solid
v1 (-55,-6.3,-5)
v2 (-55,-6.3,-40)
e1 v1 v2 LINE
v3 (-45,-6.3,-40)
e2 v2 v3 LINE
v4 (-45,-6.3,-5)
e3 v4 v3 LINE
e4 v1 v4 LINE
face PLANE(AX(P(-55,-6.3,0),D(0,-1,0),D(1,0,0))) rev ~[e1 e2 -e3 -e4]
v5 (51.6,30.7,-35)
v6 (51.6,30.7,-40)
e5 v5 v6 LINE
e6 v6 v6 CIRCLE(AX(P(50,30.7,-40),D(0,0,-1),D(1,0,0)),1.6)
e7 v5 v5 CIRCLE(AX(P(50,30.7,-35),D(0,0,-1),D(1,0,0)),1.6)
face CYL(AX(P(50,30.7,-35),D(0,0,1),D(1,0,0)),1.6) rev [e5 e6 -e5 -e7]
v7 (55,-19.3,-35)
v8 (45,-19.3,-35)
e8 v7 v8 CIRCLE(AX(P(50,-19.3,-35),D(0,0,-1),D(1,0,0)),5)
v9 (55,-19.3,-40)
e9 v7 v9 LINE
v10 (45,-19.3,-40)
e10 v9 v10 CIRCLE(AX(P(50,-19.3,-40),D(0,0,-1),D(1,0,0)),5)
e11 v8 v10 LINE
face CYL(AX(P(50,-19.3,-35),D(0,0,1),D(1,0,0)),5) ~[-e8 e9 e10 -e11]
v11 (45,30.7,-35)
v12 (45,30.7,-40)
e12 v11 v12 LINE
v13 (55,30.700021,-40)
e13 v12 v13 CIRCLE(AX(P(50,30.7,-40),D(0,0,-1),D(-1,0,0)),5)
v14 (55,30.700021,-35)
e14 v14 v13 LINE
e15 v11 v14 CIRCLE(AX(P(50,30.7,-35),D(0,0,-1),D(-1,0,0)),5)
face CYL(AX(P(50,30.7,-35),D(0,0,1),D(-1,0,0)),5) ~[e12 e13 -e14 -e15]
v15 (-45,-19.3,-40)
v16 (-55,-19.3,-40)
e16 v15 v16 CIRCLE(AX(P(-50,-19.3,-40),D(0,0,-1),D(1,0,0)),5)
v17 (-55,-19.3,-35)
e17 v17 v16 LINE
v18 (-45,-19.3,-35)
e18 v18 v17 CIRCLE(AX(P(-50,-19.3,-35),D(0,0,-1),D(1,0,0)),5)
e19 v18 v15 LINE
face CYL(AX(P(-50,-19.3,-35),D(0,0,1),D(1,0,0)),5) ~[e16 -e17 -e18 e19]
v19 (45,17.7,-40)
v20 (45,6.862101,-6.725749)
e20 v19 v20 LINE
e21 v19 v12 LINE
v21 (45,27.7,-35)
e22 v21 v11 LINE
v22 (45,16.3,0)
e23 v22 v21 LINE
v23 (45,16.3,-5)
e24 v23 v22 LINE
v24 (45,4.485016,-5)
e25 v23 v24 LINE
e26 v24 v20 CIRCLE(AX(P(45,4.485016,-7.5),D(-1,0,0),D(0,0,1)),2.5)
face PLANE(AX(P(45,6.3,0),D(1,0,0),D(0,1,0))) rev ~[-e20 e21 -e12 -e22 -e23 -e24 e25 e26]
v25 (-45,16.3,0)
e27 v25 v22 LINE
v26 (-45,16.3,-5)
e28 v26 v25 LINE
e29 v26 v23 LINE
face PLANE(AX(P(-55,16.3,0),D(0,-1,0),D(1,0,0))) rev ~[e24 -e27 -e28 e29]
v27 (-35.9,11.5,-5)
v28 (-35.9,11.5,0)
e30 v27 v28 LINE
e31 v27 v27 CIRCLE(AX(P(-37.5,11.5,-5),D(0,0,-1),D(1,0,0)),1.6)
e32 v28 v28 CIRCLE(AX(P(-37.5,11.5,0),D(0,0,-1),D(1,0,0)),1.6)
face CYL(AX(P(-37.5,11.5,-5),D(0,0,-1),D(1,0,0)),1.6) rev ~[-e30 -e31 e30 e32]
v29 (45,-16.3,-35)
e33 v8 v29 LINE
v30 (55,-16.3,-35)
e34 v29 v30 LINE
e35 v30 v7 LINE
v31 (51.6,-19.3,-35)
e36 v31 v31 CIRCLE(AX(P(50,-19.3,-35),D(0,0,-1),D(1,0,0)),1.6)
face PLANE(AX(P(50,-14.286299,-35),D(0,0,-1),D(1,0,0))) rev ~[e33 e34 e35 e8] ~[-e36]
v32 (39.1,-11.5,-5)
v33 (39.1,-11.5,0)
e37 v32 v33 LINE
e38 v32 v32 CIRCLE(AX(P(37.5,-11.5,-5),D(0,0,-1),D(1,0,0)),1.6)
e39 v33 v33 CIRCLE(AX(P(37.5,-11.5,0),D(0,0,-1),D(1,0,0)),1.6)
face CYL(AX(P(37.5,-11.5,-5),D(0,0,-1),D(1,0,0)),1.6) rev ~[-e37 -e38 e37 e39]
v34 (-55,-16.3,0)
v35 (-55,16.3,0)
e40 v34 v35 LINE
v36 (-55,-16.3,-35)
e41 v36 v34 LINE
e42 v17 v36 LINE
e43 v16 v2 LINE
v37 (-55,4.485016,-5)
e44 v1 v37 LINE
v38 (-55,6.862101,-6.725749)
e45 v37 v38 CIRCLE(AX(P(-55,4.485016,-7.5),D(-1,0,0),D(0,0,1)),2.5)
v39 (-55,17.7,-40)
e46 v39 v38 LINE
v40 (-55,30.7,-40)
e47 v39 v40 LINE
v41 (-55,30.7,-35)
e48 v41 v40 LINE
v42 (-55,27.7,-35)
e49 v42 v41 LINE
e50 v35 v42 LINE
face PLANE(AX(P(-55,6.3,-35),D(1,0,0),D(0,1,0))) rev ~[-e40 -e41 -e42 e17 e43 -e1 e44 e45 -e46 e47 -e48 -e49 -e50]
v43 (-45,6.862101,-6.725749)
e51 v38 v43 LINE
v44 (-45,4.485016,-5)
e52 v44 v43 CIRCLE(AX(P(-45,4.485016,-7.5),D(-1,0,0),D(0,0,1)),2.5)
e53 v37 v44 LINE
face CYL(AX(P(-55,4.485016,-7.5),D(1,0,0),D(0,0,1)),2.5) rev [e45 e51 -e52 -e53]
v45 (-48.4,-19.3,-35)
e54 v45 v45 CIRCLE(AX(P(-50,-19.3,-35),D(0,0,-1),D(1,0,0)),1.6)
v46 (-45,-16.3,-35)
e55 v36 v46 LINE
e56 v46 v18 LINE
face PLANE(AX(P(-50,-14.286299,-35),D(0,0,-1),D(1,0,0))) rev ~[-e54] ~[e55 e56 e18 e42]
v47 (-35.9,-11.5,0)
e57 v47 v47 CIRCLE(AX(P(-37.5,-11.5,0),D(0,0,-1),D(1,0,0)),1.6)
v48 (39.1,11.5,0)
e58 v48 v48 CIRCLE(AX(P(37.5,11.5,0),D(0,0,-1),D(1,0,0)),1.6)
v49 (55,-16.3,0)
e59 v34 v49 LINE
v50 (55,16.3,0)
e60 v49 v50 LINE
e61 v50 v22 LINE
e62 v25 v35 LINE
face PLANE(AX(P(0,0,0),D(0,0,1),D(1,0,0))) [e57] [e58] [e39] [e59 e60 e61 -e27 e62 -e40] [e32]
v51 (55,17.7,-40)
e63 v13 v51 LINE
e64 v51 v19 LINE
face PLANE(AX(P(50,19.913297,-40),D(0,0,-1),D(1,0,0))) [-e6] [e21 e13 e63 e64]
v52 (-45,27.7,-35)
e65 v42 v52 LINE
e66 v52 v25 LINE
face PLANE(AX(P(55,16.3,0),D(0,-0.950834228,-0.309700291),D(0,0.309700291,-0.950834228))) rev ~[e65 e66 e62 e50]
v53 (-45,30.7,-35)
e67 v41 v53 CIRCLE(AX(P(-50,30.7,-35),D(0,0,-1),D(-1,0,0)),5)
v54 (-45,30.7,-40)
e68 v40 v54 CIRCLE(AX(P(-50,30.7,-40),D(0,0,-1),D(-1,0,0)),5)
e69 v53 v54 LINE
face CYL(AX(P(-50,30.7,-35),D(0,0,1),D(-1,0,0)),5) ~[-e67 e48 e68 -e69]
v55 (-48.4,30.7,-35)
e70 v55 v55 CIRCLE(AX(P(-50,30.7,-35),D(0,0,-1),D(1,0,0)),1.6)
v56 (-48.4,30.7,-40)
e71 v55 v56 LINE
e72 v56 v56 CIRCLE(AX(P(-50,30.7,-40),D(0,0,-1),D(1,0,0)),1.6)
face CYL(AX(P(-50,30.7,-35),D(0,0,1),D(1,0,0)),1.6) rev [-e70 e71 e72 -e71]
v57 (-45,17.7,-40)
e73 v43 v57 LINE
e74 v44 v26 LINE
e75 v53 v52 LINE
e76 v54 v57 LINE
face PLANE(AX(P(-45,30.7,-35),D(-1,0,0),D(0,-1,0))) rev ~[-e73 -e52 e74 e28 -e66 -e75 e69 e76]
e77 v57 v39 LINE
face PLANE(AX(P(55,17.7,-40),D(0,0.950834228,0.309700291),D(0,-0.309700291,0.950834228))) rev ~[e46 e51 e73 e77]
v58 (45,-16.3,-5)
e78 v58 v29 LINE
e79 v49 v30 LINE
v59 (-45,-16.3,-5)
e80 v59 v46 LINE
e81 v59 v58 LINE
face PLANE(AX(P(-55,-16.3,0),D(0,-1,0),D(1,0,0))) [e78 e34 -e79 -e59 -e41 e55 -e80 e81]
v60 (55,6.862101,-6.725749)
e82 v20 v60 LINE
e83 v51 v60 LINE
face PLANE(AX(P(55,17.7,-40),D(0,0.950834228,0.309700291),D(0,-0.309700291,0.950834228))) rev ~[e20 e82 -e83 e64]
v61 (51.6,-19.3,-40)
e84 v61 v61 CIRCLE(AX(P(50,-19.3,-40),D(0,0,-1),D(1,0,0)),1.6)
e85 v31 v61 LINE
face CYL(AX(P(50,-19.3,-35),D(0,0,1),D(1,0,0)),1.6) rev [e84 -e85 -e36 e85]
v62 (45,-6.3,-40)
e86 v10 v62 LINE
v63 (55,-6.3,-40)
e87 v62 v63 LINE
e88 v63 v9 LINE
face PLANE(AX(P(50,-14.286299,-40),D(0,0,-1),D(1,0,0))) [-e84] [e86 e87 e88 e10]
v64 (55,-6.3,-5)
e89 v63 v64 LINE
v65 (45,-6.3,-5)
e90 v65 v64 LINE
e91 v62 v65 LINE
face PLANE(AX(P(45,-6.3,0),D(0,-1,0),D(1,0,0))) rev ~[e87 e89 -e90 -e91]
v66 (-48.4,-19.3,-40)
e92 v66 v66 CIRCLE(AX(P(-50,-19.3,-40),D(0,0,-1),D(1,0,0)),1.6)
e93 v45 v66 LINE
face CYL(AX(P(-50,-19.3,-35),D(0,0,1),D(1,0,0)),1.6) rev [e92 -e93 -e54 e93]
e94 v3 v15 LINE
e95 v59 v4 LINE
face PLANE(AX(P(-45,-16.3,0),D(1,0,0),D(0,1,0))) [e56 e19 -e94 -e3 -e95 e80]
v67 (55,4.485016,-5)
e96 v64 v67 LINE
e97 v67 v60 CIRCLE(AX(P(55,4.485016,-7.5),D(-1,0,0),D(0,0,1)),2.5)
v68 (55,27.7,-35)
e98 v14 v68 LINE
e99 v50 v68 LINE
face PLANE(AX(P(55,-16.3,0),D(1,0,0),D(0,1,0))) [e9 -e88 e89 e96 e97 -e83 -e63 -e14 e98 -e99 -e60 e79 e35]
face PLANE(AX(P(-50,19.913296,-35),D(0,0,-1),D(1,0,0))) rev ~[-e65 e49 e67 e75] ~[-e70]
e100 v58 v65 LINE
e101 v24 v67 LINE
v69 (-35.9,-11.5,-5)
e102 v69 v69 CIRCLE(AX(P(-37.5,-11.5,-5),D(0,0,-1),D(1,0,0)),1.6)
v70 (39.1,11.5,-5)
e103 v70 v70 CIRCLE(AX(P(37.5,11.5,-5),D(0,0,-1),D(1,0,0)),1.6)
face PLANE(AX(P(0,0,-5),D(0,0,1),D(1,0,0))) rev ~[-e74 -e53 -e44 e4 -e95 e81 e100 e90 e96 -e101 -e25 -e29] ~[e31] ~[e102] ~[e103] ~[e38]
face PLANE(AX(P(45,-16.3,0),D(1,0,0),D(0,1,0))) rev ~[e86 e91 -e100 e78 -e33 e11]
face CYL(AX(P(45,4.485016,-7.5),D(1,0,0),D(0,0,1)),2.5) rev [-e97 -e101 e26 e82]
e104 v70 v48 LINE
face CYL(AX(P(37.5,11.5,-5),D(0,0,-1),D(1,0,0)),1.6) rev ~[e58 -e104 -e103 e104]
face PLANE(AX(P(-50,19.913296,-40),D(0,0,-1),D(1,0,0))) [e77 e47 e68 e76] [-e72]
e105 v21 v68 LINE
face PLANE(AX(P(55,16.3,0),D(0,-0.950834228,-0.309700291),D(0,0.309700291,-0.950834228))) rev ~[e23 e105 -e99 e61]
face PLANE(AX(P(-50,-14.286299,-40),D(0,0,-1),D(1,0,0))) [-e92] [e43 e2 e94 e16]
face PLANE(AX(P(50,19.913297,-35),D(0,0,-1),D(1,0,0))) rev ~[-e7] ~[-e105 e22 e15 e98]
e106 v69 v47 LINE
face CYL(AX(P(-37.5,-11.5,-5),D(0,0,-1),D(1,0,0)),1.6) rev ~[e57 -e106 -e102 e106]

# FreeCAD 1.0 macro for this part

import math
import FreeCAD as App
import Part
import Sketcher
from FreeCAD import Vector


def edges_at(feature, points):
    """Names of the edges that pass closest to the given points."""
    edges = feature.Shape.Edges
    near = lambda p: min(range(len(edges)), key=lambda i: edges[i].distToShape(Part.Vertex(*p))[0])
    return sorted({f"Edge{near(p) + 1}" for p in points})


def add_polygon(sketch, points):
    """Adds a closed chain of lines whose ends are joined by coincident constraints."""
    first, n = sketch.GeometryCount, len(points)
    for a, b in zip(points, points[1:] + points[:1]):
        sketch.addGeometry(Part.LineSegment(App.Vector(*a, 0), App.Vector(*b, 0)), False)
    for i in range(n):
        sketch.addConstraint(Sketcher.Constraint("Coincident", first + i, 2, first + (i + 1) % n, 1))

doc = App.newDocument("Part")
params = doc.addObject("Spreadsheet::Sheet", "Params")
for row, (alias, value) in enumerate([
    ("sketch1_width", "110 mm"),
    ("sketch1_height", "32.6 mm"),
    ("pad1_length", "5 mm"),
    ("sketch2_diameter", "3.2 mm"),
    ("pocket1_length", "5 mm"),
    ("sketch3_width", "10 mm"),
    ("sketch3_height", "21.4 mm"),
    ("pad2_length", "35 mm"),
    ("sketch4_radius", "5 mm"),
    ("sketch4_diameter", "3.2 mm"),
    ("sketch4_height", "13 mm"),
    ("sketch4_height2", "24.4 mm"),
    ("pad3_length", "5 mm"),
    ("sketch5_height", "35 mm"),
    ("sketch5_width", "11.4 mm"),
    ("pocket2_length", "110 mm"),
    ("fillet_radius", "2.5 mm"),
], start=1):
    params.set(f"A{row}", alias)
    params.set(f"B{row}", "=" + value)
    params.setAlias(f"B{row}", alias)

body = doc.addObject("PartDesign::Body", "Body")

# Sketch on XY plane
sketch1 = body.newObject("Sketcher::SketchObject", "Sketch")
sketch1.AttachmentSupport = (doc.getObject("XY_Plane"), [""])
sketch1.MapMode = "FlatFace"
add_polygon(sketch1, [(-55, 16), (-55, -16), (55, -16), (55, 16)])  # lines 0-3
sketch1.addConstraint([
    Sketcher.Constraint("Vertical", 0),
    Sketcher.Constraint("Horizontal", 1),
    Sketcher.Constraint("Vertical", 2),
    Sketcher.Constraint("Horizontal", 3),
    Sketcher.Constraint("Symmetric", 0, 2, 2, 2, -1, 1),
    Sketcher.Constraint("DistanceX", 1, 1, 1, 2, 110.0),
    Sketcher.Constraint("DistanceY", 0, 2, 0, 1, 32.6),
])
sketch1.setExpression("Constraints[9]", "Params.sketch1_width")
sketch1.setExpression("Constraints[10]", "Params.sketch1_height")
pad1 = body.newObject("PartDesign::Pad", "Pad")
pad1.Profile = sketch1
pad1.setExpression("Length", "Params.pad1_length")
pad1.Reversed = True

# Sketch on XY plane
sketch2 = body.newObject("Sketcher::SketchObject", "Sketch001")
sketch2.AttachmentSupport = (doc.getObject("XY_Plane"), [""])
sketch2.MapMode = "FlatFace"
sketch2.AttachmentOffset = App.Placement(Vector(0, 0, -5), App.Rotation())
sketch2.addGeometry([
    Part.Circle(Vector(-37.5, -11.5, 0), Vector(0, 0, 1), 1.6),
    Part.Circle(Vector(-37.5, 11.5, 0), Vector(0, 0, 1), 1.6),
    Part.Circle(Vector(37.5, 11.5, 0), Vector(0, 0, 1), 1.6),
    Part.Circle(Vector(37.5, -11.5, 0), Vector(0, 0, 1), 1.6),
], False)
sketch2.addConstraint([
    Sketcher.Constraint("Equal", 0, 1),
    Sketcher.Constraint("Equal", 1, 2),
    Sketcher.Constraint("Equal", 2, 3),
    Sketcher.Constraint("Symmetric", 0, 3, 2, 3, -1, 1),
    Sketcher.Constraint("Symmetric", 1, 3, 3, 3, -1, 1),
    Sketcher.Constraint("Symmetric", 1, 3, 2, 3, -2),
    Sketcher.Constraint("Diameter", 0, 3.2),
    Sketcher.Constraint("DistanceY", 0, 3, 1, 3, 23.0),
    Sketcher.Constraint("DistanceX", 1, 3, 2, 3, 75.0),
])
sketch2.setExpression("Constraints[6]", "Params.sketch2_diameter")
pocket1 = body.newObject("PartDesign::Pocket", "Pocket")
pocket1.Profile = sketch2
pocket1.setExpression("Length", "Params.pocket1_length")
pocket1.Reversed = True

# Sketch on XY plane
sketch3 = body.newObject("Sketcher::SketchObject", "Sketch002")
sketch3.AttachmentSupport = (doc.getObject("XY_Plane"), [""])
sketch3.MapMode = "FlatFace"
add_polygon(sketch3, [(-55, 28), (-55, 6), (-45, 6), (-45, 28)])  # lines 0-3
add_polygon(sketch3, [(45, 28), (45, 6), (55, 6), (55, 28)])  # lines 4-7
add_polygon(sketch3, [(45, -6), (45, -16), (55, -16), (55, -6)])  # lines 8-11
add_polygon(sketch3, [(-55, -6), (-55, -16), (-45, -16), (-45, -6)])  # lines 12-15
sketch3.addConstraint([
    Sketcher.Constraint("Vertical", 0),
    Sketcher.Constraint("Horizontal", 1),
    Sketcher.Constraint("Vertical", 2),
    Sketcher.Constraint("Horizontal", 3),
    Sketcher.Constraint("Vertical", 4),
    Sketcher.Constraint("Horizontal", 5),
    Sketcher.Constraint("Vertical", 6),
    Sketcher.Constraint("Horizontal", 7),
    Sketcher.Constraint("Vertical", 8),
    Sketcher.Constraint("Horizontal", 9),
    Sketcher.Constraint("Vertical", 10),
    Sketcher.Constraint("Horizontal", 11),
    Sketcher.Constraint("Vertical", 12),
    Sketcher.Constraint("Horizontal", 13),
    Sketcher.Constraint("Vertical", 14),
    Sketcher.Constraint("Horizontal", 15),
    Sketcher.Constraint("Symmetric", 0, 2, 10, 2, -1, 1),
    Sketcher.Constraint("Symmetric", 4, 2, 14, 2, -1, 1),
    Sketcher.Constraint("Symmetric", 1, 2, 4, 2, -2),
    Sketcher.Constraint("Symmetric", 3, 2, 6, 2, -2),
    Sketcher.Constraint("Symmetric", 9, 2, 12, 2, -2),
    Sketcher.Constraint("Vertical", 7, 2, 8, 2),
    Sketcher.Constraint("Equal", 15, 8),
    Sketcher.Constraint("DistanceX", 1, 1, 1, 2, 10.0),
    Sketcher.Constraint("DistanceY", 0, 2, 0, 1, 21.4),
    Sketcher.Constraint("DistanceX", 0, 2, -1, 1, 55.0),
    Sketcher.Constraint("DistanceY", 8, 2, 7, 2, 44.0),
])
sketch3.setExpression("Constraints[39]", "Params.sketch3_width")
sketch3.setExpression("Constraints[40]", "Params.sketch3_height")
pad2 = body.newObject("PartDesign::Pad", "Pad001")
pad2.Profile = sketch3
pad2.setExpression("Length", "Params.pad2_length")
pad2.Reversed = True

# Sketch on XY plane
sketch4 = body.newObject("Sketcher::SketchObject", "Sketch003")
sketch4.AttachmentSupport = (doc.getObject("XY_Plane"), [""])
sketch4.MapMode = "FlatFace"
sketch4.AttachmentOffset = App.Placement(Vector(0, 0, -35), App.Rotation())
sketch4.addGeometry([
    Part.LineSegment(Vector(-45, 6.3, 0), Vector(-55, 6.3, 0)),  # 0
    Part.LineSegment(Vector(-55, 6.3, 0), Vector(-55, 30.7, 0)),  # 1
    Part.ArcOfCircle(Part.Circle(Vector(-50, 30.7, 0), Vector(0, 0, 1), 5), math.radians(0), math.radians(180)),  # 2
    Part.LineSegment(Vector(-45, 30.7, 0), Vector(-45, 6.3, 0)),  # 3
    Part.Circle(Vector(-50, 30.7, 0), Vector(0, 0, 1), 1.6),  # 4
    Part.LineSegment(Vector(55, 6.3, 0), Vector(45, 6.3, 0)),  # 5
    Part.LineSegment(Vector(45, 6.3, 0), Vector(45, 30.7, 0)),  # 6
    Part.ArcOfCircle(Part.Circle(Vector(50, 30.7, 0), Vector(0, 0, 1), 5), math.radians(0), math.radians(180)),  # 7
    Part.LineSegment(Vector(55, 30.7, 0), Vector(55, 6.3, 0)),  # 8
    Part.Circle(Vector(50, 30.7, 0), Vector(0, 0, 1), 1.6),  # 9
    Part.LineSegment(Vector(45, -6.3, 0), Vector(55, -6.3, 0)),  # 10
    Part.LineSegment(Vector(55, -6.3, 0), Vector(55, -19.3, 0)),  # 11
    Part.ArcOfCircle(Part.Circle(Vector(50, -19.3, 0), Vector(0, 0, 1), 5), math.radians(180), math.radians(360)),  # 12
    Part.LineSegment(Vector(45, -19.3, 0), Vector(45, -6.3, 0)),  # 13
    Part.Circle(Vector(50, -19.3, 0), Vector(0, 0, 1), 1.6),  # 14
    Part.LineSegment(Vector(-55, -6.3, 0), Vector(-45, -6.3, 0)),  # 15
    Part.LineSegment(Vector(-45, -6.3, 0), Vector(-45, -19.3, 0)),  # 16
    Part.ArcOfCircle(Part.Circle(Vector(-50, -19.3, 0), Vector(0, 0, 1), 5), math.radians(180), math.radians(360)),  # 17
    Part.LineSegment(Vector(-55, -19.3, 0), Vector(-55, -6.3, 0)),  # 18
    Part.Circle(Vector(-50, -19.3, 0), Vector(0, 0, 1), 1.6),  # 19
], False)
sketch4.addConstraint([
    Sketcher.Constraint("Coincident", 0, 2, 1, 1),
    Sketcher.Constraint("Tangent", 1, 2, 2, 2),
    Sketcher.Constraint("Tangent", 2, 1, 3, 1),
    Sketcher.Constraint("Coincident", 3, 2, 0, 1),
    Sketcher.Constraint("Coincident", 5, 2, 6, 1),
    Sketcher.Constraint("Tangent", 6, 2, 7, 2),
    Sketcher.Constraint("Coincident", 7, 1, 8, 1),
    Sketcher.Constraint("Coincident", 8, 2, 5, 1),
    Sketcher.Constraint("Coincident", 10, 2, 11, 1),
    Sketcher.Constraint("Tangent", 11, 2, 12, 2),
    Sketcher.Constraint("Tangent", 12, 1, 13, 1),
    Sketcher.Constraint("Coincident", 13, 2, 10, 1),
    Sketcher.Constraint("Coincident", 15, 2, 16, 1),
    Sketcher.Constraint("Tangent", 16, 2, 17, 2),
    Sketcher.Constraint("Tangent", 17, 1, 18, 1),
    Sketcher.Constraint("Coincident", 18, 2, 15, 1),
    Sketcher.Constraint("Horizontal", 0),
    Sketcher.Constraint("Vertical", 1),
    Sketcher.Constraint("Vertical", 3),
    Sketcher.Constraint("Horizontal", 5),
    Sketcher.Constraint("Vertical", 6),
    Sketcher.Constraint("Vertical", 8),
    Sketcher.Constraint("Horizontal", 10),
    Sketcher.Constraint("Vertical", 11),
    Sketcher.Constraint("Vertical", 13),
    Sketcher.Constraint("Horizontal", 15),
    Sketcher.Constraint("Vertical", 16),
    Sketcher.Constraint("Vertical", 18),
    Sketcher.Constraint("Coincident", 4, 3, 2, 3),
    Sketcher.Constraint("Coincident", 9, 3, 7, 3),
    Sketcher.Constraint("Coincident", 14, 3, 12, 3),
    Sketcher.Constraint("Coincident", 19, 3, 17, 3),
    Sketcher.Constraint("Equal", 2, 7),
    Sketcher.Constraint("Equal", 4, 9),
    Sketcher.Constraint("Equal", 7, 12),
    Sketcher.Constraint("Equal", 9, 14),
    Sketcher.Constraint("Equal", 12, 17),
    Sketcher.Constraint("Equal", 14, 19),
    Sketcher.Constraint("Symmetric", 0, 2, 10, 2, -1, 1),
    Sketcher.Constraint("Symmetric", 5, 2, 15, 2, -1, 1),
    Sketcher.Constraint("Symmetric", 2, 3, 7, 3, -2),
    Sketcher.Constraint("Horizontal", 14, 3, 17, 3),
    Sketcher.Constraint("Horizontal", 3, 2, 5, 2),
    Sketcher.Constraint("Radius", 2, 5.0),
    Sketcher.Constraint("Diameter", 4, 3.2),
    Sketcher.Constraint("DistanceY", 11, 2, 11, 1, 13.0),
    Sketcher.Constraint("DistanceY", 1, 1, 1, 2, 24.4),
    Sketcher.Constraint("DistanceX", 2, 3, -1, 1, 50.0),
    Sketcher.Constraint("DistanceY", 12, 3, 7, 3, 50.0),
    Sketcher.Constraint("DistanceY", 8, 2, 8, 1, 24.400021),
])
sketch4.setExpression("Constraints[43]", "Params.sketch4_radius")
sketch4.setExpression("Constraints[44]", "Params.sketch4_diameter")
sketch4.setExpression("Constraints[45]", "Params.sketch4_height")
sketch4.setExpression("Constraints[46]", "Params.sketch4_height2")
pad3 = body.newObject("PartDesign::Pad", "Pad002")
pad3.Profile = sketch4
pad3.setExpression("Length", "Params.pad3_length")
pad3.Reversed = True

# Sketch on YZ plane
sketch5 = body.newObject("Sketcher::SketchObject", "Sketch004")
sketch5.AttachmentSupport = (doc.getObject("YZ_Plane"), [""])
sketch5.MapMode = "FlatFace"
sketch5.AttachmentOffset = App.Placement(Vector(0, 0, 55), App.Rotation())
add_polygon(sketch5, [(16, 0), (28, -35), (28, 0)])  # lines 0-2
add_polygon(sketch5, [(18, -40), (6, -5), (6, -40)])  # lines 3-5
sketch5.addConstraint([
    Sketcher.Constraint("Vertical", 1),
    Sketcher.Constraint("Horizontal", 2),
    Sketcher.Constraint("Vertical", 4),
    Sketcher.Constraint("Horizontal", 5),
    Sketcher.Constraint("PointOnObject", 1, 2, -1),
    Sketcher.Constraint("Parallel", 0, 3),
    Sketcher.Constraint("Equal", 2, 5),
    Sketcher.Constraint("DistanceY", 1, 1, 1, 2, 35.0),
    Sketcher.Constraint("DistanceX", 2, 2, 2, 1, 11.4),
    Sketcher.Constraint("DistanceY", 3, 2, -1, 1, 5.0),
    Sketcher.Constraint("DistanceX", 3, 2, 2, 2, 10.0),
    Sketcher.Constraint("DistanceX", -1, 1, 0, 2, 27.7),
])
sketch5.setExpression("Constraints[13]", "Params.sketch5_height")
sketch5.setExpression("Constraints[14]", "Params.sketch5_width")
pocket2 = body.newObject("PartDesign::Pocket", "Pocket001")
pocket2.Profile = sketch5
pocket2.setExpression("Length", "Params.pocket2_length")
doc.recompute()

fillet = body.newObject("PartDesign::Fillet", "Fillet")
fillet.Base = (pocket2, edges_at(pocket2, [(-50, 6.3, -5), (50, 6.3, -5)]))
fillet.setExpression("Radius", "Params.fillet_radius")

doc.recompute()
